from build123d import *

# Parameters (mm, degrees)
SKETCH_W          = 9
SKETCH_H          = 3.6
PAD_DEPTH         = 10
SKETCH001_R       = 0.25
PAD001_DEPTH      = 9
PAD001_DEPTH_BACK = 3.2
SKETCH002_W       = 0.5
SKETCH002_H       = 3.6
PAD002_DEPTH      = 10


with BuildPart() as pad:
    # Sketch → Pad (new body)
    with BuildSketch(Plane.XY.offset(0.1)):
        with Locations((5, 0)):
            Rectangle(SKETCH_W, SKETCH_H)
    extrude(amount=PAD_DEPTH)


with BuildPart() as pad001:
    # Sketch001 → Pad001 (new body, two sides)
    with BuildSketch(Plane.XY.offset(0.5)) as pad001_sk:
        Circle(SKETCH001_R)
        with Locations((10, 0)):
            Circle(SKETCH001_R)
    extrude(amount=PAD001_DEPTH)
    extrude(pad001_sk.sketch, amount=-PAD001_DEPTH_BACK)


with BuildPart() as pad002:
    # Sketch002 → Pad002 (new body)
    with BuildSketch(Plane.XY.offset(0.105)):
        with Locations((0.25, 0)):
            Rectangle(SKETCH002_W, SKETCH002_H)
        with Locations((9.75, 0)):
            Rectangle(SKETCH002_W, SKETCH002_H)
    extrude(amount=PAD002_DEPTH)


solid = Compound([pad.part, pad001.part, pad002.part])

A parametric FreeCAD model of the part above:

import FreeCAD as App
import Part
import Sketcher
Q = App.Units.Quantity

doc = App.newDocument("Part")
body = doc.addObject("PartDesign::Body", "Body")

sketch1 = body.newObject("Sketcher::SketchObject", "Sketch")
sketch1.AttachmentSupport = (doc.getObject("XY_Plane"), [""])
sketch1.MapMode = "FlatFace"
sketch1.AttachmentOffset = App.Placement(App.Vector(0, 0, 0.1), App.Rotation())
sketch1.addGeometry([
    Part.LineSegment(App.Vector(0.5, 1.8, 0), App.Vector(0.5, -1.8, 0)),
    Part.LineSegment(App.Vector(0.5, -1.8, 0), App.Vector(9.5, -1.8, 0)),
    Part.LineSegment(App.Vector(9.5, -1.8, 0), App.Vector(9.5, 1.8, 0)),
    Part.LineSegment(App.Vector(9.5, 1.8, 0), App.Vector(0.5, 1.8, 0)),
], False)
sketch1.addConstraint([
    Sketcher.Constraint("Coincident", 0, 2, 1, 1),
    Sketcher.Constraint("Coincident", 1, 2, 2, 1),
    Sketcher.Constraint("Coincident", 2, 2, 3, 1),
    Sketcher.Constraint("Coincident", 3, 2, 0, 1),
    Sketcher.Constraint("Vertical", 0),
    Sketcher.Constraint("Horizontal", 1),
    Sketcher.Constraint("Vertical", 2),
    Sketcher.Constraint("Horizontal", 3),
    Sketcher.Constraint("DistanceX", 1, 1, 1, 2, Q("9 mm")),
    Sketcher.Constraint("DistanceY", 0, 2, 0, 1, Q("3.6 mm")),
    Sketcher.Constraint("DistanceX", -1, 1, 0, 2, Q("0.5 mm")),
    Sketcher.Constraint("DistanceY", 0, 2, -1, 1, Q("1.8 mm")),
])
pad1 = body.newObject("PartDesign::Pad", "Pad")
pad1.Profile = sketch1
pad1.Length = 10
body2 = doc.addObject("PartDesign::Body", "Body001")
body2.AllowCompound = True

sketch2 = body2.newObject("Sketcher::SketchObject", "Sketch001")
sketch2.AttachmentSupport = (doc.getObject("XY_Plane001"), [""])
sketch2.MapMode = "FlatFace"
sketch2.AttachmentOffset = App.Placement(App.Vector(0, 0, 0.5), App.Rotation())
sketch2.addGeometry([
    Part.Circle(App.Vector(0, 0, 0), App.Vector(0, 0, 1), 0.25),
    Part.Circle(App.Vector(10, 0, 0), App.Vector(0, 0, 1), 0.25),
], False)
sketch2.addConstraint([
    Sketcher.Constraint("Coincident", 0, 3, -1, 1),
    Sketcher.Constraint("Equal", 0, 1),
    Sketcher.Constraint("PointOnObject", 1, 3, -1),
    Sketcher.Constraint("Diameter", 0, Q("0.5 mm")),
    Sketcher.Constraint("DistanceX", -1, 1, 1, 3, Q("10 mm")),
])
pad2 = body2.newObject("PartDesign::Pad", "Pad001")
pad2.Profile = sketch2
pad2.Type = "TwoLengths"
pad2.Length = 9
pad2.Length2 = 3.2
body3 = doc.addObject("PartDesign::Body", "Body002")
body3.AllowCompound = True

sketch3 = body3.newObject("Sketcher::SketchObject", "Sketch002")
sketch3.AttachmentSupport = (doc.getObject("XY_Plane002"), [""])
sketch3.MapMode = "FlatFace"
sketch3.AttachmentOffset = App.Placement(App.Vector(0, 0, 0.105), App.Rotation())
sketch3.addGeometry([
    Part.LineSegment(App.Vector(0, 1.8, 0), App.Vector(0, -1.8, 0)),
    Part.LineSegment(App.Vector(0, -1.8, 0), App.Vector(0.5, -1.8, 0)),
    Part.LineSegment(App.Vector(0.5, -1.8, 0), App.Vector(0.5, 1.8, 0)),
    Part.LineSegment(App.Vector(0.5, 1.8, 0), App.Vector(0, 1.8, 0)),
    Part.LineSegment(App.Vector(9.5, 1.8, 0), App.Vector(9.5, -1.8, 0)),
    Part.LineSegment(App.Vector(9.5, -1.8, 0), App.Vector(10, -1.8, 0)),
    Part.LineSegment(App.Vector(10, -1.8, 0), App.Vector(10, 1.8, 0)),
    Part.LineSegment(App.Vector(10, 1.8, 0), App.Vector(9.5, 1.8, 0)),
], False)
sketch3.addConstraint([
    Sketcher.Constraint("Coincident", 0, 2, 1, 1),
    Sketcher.Constraint("Coincident", 1, 2, 2, 1),
    Sketcher.Constraint("Coincident", 2, 2, 3, 1),
    Sketcher.Constraint("Coincident", 3, 2, 0, 1),
    Sketcher.Constraint("Coincident", 4, 2, 5, 1),
    Sketcher.Constraint("Coincident", 5, 2, 6, 1),
    Sketcher.Constraint("Coincident", 6, 2, 7, 1),
    Sketcher.Constraint("Coincident", 7, 2, 4, 1),
    Sketcher.Constraint("Vertical", 0),
    Sketcher.Constraint("Horizontal", 1),
    Sketcher.Constraint("Vertical", 2),
    Sketcher.Constraint("Horizontal", 3),
    Sketcher.Constraint("Vertical", 4),
    Sketcher.Constraint("Horizontal", 5),
    Sketcher.Constraint("Vertical", 6),
    Sketcher.Constraint("Horizontal", 7),
    Sketcher.Constraint("Symmetric", 0, 2, 3, 2, -1, 1),
    Sketcher.Constraint("Horizontal", 1, 2, 4, 2),
    Sketcher.Constraint("Horizontal", 3, 2, 6, 2),
    Sketcher.Constraint("Equal", 3, 5),
    Sketcher.Constraint("DistanceX", 1, 1, 1, 2, Q("0.5 mm")),
    Sketcher.Constraint("DistanceY", 0, 2, 0, 1, Q("3.6 mm")),
    Sketcher.Constraint("DistanceX", -1, 1, 5, 2, Q("10 mm")),
])
pad3 = body3.newObject("PartDesign::Pad", "Pad002")
pad3.Profile = sketch3
pad3.Length = 10

doc.recompute()
